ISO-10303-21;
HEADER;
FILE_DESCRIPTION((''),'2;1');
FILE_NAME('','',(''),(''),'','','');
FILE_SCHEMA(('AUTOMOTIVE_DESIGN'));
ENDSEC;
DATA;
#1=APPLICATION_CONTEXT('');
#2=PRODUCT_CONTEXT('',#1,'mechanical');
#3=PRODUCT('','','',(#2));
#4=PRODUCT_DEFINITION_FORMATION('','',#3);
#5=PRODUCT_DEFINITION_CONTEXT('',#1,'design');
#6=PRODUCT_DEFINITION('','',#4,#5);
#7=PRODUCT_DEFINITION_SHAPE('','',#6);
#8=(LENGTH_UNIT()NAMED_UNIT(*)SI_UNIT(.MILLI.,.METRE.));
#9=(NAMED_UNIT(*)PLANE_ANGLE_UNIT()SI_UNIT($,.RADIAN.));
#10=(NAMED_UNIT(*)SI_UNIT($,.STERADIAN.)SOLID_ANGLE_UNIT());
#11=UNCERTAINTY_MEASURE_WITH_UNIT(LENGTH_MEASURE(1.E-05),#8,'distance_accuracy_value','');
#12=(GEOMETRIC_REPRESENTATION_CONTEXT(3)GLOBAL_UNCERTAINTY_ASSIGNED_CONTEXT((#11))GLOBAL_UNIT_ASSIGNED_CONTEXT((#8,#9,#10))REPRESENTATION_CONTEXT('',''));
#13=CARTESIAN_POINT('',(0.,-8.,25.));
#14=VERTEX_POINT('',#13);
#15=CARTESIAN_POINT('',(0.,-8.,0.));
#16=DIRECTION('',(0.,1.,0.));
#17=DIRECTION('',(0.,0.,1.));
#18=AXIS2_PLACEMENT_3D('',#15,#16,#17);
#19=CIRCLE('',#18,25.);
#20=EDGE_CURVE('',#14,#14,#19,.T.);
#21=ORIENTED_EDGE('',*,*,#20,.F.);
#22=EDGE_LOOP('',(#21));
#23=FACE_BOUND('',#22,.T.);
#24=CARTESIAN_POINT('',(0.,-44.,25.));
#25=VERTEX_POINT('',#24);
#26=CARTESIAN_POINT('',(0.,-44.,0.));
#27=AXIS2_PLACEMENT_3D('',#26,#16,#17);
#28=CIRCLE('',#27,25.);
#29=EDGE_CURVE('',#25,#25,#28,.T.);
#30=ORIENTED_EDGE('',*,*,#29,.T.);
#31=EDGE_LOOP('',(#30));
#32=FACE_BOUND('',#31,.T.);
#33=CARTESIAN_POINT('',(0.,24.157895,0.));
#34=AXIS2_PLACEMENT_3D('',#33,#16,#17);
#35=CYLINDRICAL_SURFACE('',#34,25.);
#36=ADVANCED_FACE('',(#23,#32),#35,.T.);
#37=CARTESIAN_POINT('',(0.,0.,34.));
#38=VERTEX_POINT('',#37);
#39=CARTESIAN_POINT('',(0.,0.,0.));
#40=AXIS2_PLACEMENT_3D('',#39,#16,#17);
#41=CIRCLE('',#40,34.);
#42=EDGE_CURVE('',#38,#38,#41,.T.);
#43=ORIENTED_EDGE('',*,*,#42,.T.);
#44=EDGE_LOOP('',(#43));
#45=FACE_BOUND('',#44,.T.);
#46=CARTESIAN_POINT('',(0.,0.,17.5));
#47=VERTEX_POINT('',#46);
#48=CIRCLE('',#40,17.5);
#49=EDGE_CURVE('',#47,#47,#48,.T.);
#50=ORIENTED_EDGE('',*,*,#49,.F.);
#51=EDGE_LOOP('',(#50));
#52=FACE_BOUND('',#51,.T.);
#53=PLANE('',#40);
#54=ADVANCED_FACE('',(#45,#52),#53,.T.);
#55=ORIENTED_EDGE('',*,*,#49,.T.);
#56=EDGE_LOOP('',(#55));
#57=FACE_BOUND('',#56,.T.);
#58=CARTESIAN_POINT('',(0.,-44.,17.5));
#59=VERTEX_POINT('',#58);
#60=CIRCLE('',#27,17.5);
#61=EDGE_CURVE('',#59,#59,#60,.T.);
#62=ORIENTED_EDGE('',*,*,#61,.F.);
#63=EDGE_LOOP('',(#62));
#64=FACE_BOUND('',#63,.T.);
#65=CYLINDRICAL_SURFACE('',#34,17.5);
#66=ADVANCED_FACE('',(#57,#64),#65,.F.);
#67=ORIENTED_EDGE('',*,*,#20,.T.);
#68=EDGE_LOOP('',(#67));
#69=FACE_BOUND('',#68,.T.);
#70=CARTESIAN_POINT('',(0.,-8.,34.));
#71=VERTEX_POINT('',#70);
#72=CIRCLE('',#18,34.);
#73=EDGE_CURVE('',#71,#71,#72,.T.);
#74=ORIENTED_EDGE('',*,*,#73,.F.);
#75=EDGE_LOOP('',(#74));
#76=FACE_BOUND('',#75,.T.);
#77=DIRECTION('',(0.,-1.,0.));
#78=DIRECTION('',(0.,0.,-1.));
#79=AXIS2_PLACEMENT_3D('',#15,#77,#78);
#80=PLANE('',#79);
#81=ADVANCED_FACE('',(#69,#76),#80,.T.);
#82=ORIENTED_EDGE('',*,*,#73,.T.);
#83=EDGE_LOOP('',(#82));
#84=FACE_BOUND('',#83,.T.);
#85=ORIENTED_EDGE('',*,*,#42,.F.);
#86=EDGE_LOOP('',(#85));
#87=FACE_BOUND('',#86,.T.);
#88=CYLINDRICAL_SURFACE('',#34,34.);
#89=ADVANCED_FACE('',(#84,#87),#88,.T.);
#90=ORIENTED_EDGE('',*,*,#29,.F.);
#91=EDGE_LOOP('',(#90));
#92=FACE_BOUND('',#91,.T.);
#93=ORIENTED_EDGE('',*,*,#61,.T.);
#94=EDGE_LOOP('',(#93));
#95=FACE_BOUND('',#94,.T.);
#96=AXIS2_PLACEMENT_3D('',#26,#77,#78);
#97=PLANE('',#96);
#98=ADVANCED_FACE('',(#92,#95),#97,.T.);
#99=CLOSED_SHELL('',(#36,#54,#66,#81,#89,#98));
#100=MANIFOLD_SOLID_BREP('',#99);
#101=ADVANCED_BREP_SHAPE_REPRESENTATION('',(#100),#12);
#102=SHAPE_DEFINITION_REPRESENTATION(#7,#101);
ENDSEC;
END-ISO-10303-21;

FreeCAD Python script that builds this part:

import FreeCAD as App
import Part
import Sketcher
Q = App.Units.Quantity

doc = App.newDocument("Part")
body = doc.addObject("PartDesign::Body", "Body")

sketch1 = doc.addObject("Sketcher::SketchObject", "Sketch")
body.addObject(sketch1)
sketch1.AttachmentSupport = (doc.XY_Plane, [""])
sketch1.MapMode = "FlatFace"
sketch1.addGeometry(Part.LineSegment(App.Vector(34, 0, 0), App.Vector(17.5, 0, 0)), False)
sketch1.addGeometry(Part.LineSegment(App.Vector(17.5, 0, 0), App.Vector(17.5, -44, 0)), False)
sketch1.addGeometry(Part.LineSegment(App.Vector(17.5, -44, 0), App.Vector(25, -44, 0)), False)
sketch1.addGeometry(Part.LineSegment(App.Vector(25, -44, 0), App.Vector(25, -8, 0)), False)
sketch1.addGeometry(Part.LineSegment(App.Vector(25, -8, 0), App.Vector(34, -8, 0)), False)
sketch1.addGeometry(Part.LineSegment(App.Vector(34, -8, 0), App.Vector(34, 0, 0)), False)
sketch1.addConstraint(Sketcher.Constraint("Coincident", 0, 2, 1, 1))
sketch1.addConstraint(Sketcher.Constraint("Coincident", 1, 2, 2, 1))
sketch1.addConstraint(Sketcher.Constraint("Coincident", 2, 2, 3, 1))
sketch1.addConstraint(Sketcher.Constraint("Coincident", 3, 2, 4, 1))
sketch1.addConstraint(Sketcher.Constraint("Coincident", 4, 2, 5, 1))
sketch1.addConstraint(Sketcher.Constraint("Coincident", 5, 2, 0, 1))
sketch1.addConstraint(Sketcher.Constraint("Horizontal", 0))
sketch1.addConstraint(Sketcher.Constraint("Vertical", 1))
sketch1.addConstraint(Sketcher.Constraint("Horizontal", 2))
sketch1.addConstraint(Sketcher.Constraint("Vertical", 3))
sketch1.addConstraint(Sketcher.Constraint("Horizontal", 4))
sketch1.addConstraint(Sketcher.Constraint("Vertical", 5))
sketch1.addConstraint(Sketcher.Constraint("PointOnObject", 0, 2, -1))
sketch1.addConstraint(Sketcher.Constraint("DistanceX", 4, 1, 4, 2, Q("9 mm")))
sketch1.addConstraint(Sketcher.Constraint("DistanceY", 1, 2, 1, 1, Q("44 mm")))
sketch1.addConstraint(Sketcher.Constraint("DistanceY", 3, 1, 3, 2, Q("36 mm")))
sketch1.addConstraint(Sketcher.Constraint("DistanceX", 0, 2, 0, 1, Q("16.5 mm")))
sketch1.addConstraint(Sketcher.Constraint("DistanceX", -1, 1, 2, 2, Q("25 mm")))
revolution = doc.addObject("PartDesign::Revolution", "Revolution")
body.addObject(revolution)
revolution.Profile = sketch1
revolution.ReferenceAxis = (sketch1, ["V_Axis"])
revolution.Angle = 360

doc.recompute()
